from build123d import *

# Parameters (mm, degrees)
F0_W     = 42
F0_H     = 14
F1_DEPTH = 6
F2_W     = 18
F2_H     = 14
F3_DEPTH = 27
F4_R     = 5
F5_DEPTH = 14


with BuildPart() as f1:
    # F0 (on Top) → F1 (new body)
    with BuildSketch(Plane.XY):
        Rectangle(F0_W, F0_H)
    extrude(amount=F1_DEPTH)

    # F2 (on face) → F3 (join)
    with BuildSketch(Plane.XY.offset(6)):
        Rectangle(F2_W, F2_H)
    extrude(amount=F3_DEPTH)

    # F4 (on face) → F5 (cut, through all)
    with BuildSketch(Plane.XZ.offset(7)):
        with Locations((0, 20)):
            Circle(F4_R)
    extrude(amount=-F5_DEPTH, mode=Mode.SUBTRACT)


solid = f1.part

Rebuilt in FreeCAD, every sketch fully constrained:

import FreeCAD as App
import Part
import Sketcher
from FreeCAD import Vector

doc = App.newDocument("Part")
body = doc.addObject("PartDesign::Body", "Body")

sketch1 = doc.addObject("Sketcher::SketchObject", "Sketch")
body.addObject(sketch1)
sketch1.AttachmentSupport = (doc.XY_Plane, [""])
sketch1.MapMode = "FlatFace"
sketch1.addGeometry([
    Part.LineSegment(Vector(-21, 7, 0), Vector(-21, -7, 0)),
    Part.LineSegment(Vector(-21, -7, 0), Vector(21, -7, 0)),
    Part.LineSegment(Vector(21, -7, 0), Vector(21, 7, 0)),
    Part.LineSegment(Vector(21, 7, 0), Vector(-21, 7, 0)),
], False)
sketch1.addConstraint([
    Sketcher.Constraint("Coincident", 0, 2, 1, 1),
    Sketcher.Constraint("Coincident", 1, 2, 2, 1),
    Sketcher.Constraint("Coincident", 2, 2, 3, 1),
    Sketcher.Constraint("Coincident", 3, 2, 0, 1),
    Sketcher.Constraint("Vertical", 0),
    Sketcher.Constraint("Horizontal", 1),
    Sketcher.Constraint("Vertical", 2),
    Sketcher.Constraint("Horizontal", 3),
    Sketcher.Constraint("Symmetric", 0, 2, 2, 2, -1, 1),
    Sketcher.Constraint("DistanceX", 1, 1, 1, 2, 42.0),
    Sketcher.Constraint("DistanceY", 0, 2, 0, 1, 14.0),
])
pad1 = doc.addObject("PartDesign::Pad", "Pad")
body.addObject(pad1)
pad1.Profile = sketch1
pad1.Length = 6

sketch2 = doc.addObject("Sketcher::SketchObject", "Sketch001")
body.addObject(sketch2)
sketch2.AttachmentSupport = (doc.XY_Plane, [""])
sketch2.MapMode = "FlatFace"
sketch2.AttachmentOffset = App.Placement(Vector(0, 0, 6), App.Rotation())
sketch2.addGeometry([
    Part.LineSegment(Vector(-9, 7, 0), Vector(-9, -7, 0)),
    Part.LineSegment(Vector(-9, -7, 0), Vector(9, -7, 0)),
    Part.LineSegment(Vector(9, -7, 0), Vector(9, 7, 0)),
    Part.LineSegment(Vector(9, 7, 0), Vector(-9, 7, 0)),
], False)
sketch2.addConstraint([
    Sketcher.Constraint("Coincident", 0, 2, 1, 1),
    Sketcher.Constraint("Coincident", 1, 2, 2, 1),
    Sketcher.Constraint("Coincident", 2, 2, 3, 1),
    Sketcher.Constraint("Coincident", 3, 2, 0, 1),
    Sketcher.Constraint("Vertical", 0),
    Sketcher.Constraint("Horizontal", 1),
    Sketcher.Constraint("Vertical", 2),
    Sketcher.Constraint("Horizontal", 3),
    Sketcher.Constraint("Symmetric", 0, 2, 2, 2, -1, 1),
    Sketcher.Constraint("DistanceX", 1, 1, 1, 2, 18.0),
    Sketcher.Constraint("DistanceY", 0, 2, 0, 1, 14.0),
])
pad2 = doc.addObject("PartDesign::Pad", "Pad001")
body.addObject(pad2)
pad2.Profile = sketch2
pad2.Length = 27

sketch3 = doc.addObject("Sketcher::SketchObject", "Sketch002")
body.addObject(sketch3)
sketch3.AttachmentSupport = (doc.XZ_Plane, [""])
sketch3.MapMode = "FlatFace"
sketch3.AttachmentOffset = App.Placement(Vector(0, 0, 7), App.Rotation())
sketch3.addGeometry(Part.Circle(Vector(0, 20, 0), Vector(0, 0, 1), 5), False)
sketch3.addConstraint([
    Sketcher.Constraint("PointOnObject", 0, 3, -2),
    Sketcher.Constraint("Diameter", 0, 10.0),
    Sketcher.Constraint("DistanceY", -1, 1, 0, 3, 20.0),
])
pocket1 = doc.addObject("PartDesign::Pocket", "Pocket")
body.addObject(pocket1)
pocket1.Profile = sketch3
pocket1.Type = "ThroughAll"

doc.recompute()
